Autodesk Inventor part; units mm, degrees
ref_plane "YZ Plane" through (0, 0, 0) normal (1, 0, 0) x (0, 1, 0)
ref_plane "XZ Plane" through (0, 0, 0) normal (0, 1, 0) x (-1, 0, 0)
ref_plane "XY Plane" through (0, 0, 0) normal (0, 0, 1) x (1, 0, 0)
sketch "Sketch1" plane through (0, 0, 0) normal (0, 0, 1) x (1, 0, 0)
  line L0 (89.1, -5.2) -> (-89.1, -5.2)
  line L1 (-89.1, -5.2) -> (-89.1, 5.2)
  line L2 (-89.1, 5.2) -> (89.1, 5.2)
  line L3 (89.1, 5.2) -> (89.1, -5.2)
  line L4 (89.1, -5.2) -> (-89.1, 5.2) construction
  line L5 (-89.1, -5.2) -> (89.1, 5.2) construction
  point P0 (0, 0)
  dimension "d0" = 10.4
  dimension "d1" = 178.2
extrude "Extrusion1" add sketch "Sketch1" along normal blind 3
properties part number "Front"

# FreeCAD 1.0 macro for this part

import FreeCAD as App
import Part
import Sketcher

V = App.Vector

doc = App.newDocument("Part")
params = doc.addObject("Spreadsheet::Sheet", "Params")
for row, (alias, value) in enumerate([
    ("sketch1_width", "178.2 mm"),
    ("sketch1_height", "10.4 mm"),
    ("pad1_length", "3 mm"),
], start=1):
    params.set(f"A{row}", alias)
    params.set(f"B{row}", "=" + value)
    params.setAlias(f"B{row}", alias)

body = doc.addObject("PartDesign::Body", "Body")

# Sketch on XY plane
sketch1 = doc.addObject("Sketcher::SketchObject", "Sketch")
body.addObject(sketch1)
sketch1.AttachmentSupport = (doc.XY_Plane, [""])
sketch1.MapMode = "FlatFace"
sketch1.addGeometry([
    Part.LineSegment(V(-89, -5, 0), V(89, -5, 0)),
    Part.LineSegment(V(89, -5, 0), V(89, 5, 0)),
    Part.LineSegment(V(89, 5, 0), V(-89, 5, 0)),
    Part.LineSegment(V(-89, 5, 0), V(-89, -5, 0)),
], False)
sketch1.addConstraint([
    Sketcher.Constraint("Coincident", 0, 2, 1, 1),
    Sketcher.Constraint("Coincident", 1, 2, 2, 1),
    Sketcher.Constraint("Coincident", 2, 2, 3, 1),
    Sketcher.Constraint("Coincident", 3, 2, 0, 1),
    Sketcher.Constraint("Horizontal", 0),
    Sketcher.Constraint("Vertical", 1),
    Sketcher.Constraint("Horizontal", 2),
    Sketcher.Constraint("Vertical", 3),
    Sketcher.Constraint("Symmetric", 0, 2, 2, 2, -1, 1),
    Sketcher.Constraint("DistanceX", 0, 1, 0, 2, 178.2),
    Sketcher.Constraint("DistanceY", 1, 1, 1, 2, 10.4),
])
sketch1.setExpression("Constraints[9]", "Params.sketch1_width")
sketch1.setExpression("Constraints[10]", "Params.sketch1_height")
pad1 = doc.addObject("PartDesign::Pad", "Pad")
body.addObject(pad1)
pad1.Profile = sketch1
pad1.setExpression("Length", "Params.pad1_length")

doc.recompute()
